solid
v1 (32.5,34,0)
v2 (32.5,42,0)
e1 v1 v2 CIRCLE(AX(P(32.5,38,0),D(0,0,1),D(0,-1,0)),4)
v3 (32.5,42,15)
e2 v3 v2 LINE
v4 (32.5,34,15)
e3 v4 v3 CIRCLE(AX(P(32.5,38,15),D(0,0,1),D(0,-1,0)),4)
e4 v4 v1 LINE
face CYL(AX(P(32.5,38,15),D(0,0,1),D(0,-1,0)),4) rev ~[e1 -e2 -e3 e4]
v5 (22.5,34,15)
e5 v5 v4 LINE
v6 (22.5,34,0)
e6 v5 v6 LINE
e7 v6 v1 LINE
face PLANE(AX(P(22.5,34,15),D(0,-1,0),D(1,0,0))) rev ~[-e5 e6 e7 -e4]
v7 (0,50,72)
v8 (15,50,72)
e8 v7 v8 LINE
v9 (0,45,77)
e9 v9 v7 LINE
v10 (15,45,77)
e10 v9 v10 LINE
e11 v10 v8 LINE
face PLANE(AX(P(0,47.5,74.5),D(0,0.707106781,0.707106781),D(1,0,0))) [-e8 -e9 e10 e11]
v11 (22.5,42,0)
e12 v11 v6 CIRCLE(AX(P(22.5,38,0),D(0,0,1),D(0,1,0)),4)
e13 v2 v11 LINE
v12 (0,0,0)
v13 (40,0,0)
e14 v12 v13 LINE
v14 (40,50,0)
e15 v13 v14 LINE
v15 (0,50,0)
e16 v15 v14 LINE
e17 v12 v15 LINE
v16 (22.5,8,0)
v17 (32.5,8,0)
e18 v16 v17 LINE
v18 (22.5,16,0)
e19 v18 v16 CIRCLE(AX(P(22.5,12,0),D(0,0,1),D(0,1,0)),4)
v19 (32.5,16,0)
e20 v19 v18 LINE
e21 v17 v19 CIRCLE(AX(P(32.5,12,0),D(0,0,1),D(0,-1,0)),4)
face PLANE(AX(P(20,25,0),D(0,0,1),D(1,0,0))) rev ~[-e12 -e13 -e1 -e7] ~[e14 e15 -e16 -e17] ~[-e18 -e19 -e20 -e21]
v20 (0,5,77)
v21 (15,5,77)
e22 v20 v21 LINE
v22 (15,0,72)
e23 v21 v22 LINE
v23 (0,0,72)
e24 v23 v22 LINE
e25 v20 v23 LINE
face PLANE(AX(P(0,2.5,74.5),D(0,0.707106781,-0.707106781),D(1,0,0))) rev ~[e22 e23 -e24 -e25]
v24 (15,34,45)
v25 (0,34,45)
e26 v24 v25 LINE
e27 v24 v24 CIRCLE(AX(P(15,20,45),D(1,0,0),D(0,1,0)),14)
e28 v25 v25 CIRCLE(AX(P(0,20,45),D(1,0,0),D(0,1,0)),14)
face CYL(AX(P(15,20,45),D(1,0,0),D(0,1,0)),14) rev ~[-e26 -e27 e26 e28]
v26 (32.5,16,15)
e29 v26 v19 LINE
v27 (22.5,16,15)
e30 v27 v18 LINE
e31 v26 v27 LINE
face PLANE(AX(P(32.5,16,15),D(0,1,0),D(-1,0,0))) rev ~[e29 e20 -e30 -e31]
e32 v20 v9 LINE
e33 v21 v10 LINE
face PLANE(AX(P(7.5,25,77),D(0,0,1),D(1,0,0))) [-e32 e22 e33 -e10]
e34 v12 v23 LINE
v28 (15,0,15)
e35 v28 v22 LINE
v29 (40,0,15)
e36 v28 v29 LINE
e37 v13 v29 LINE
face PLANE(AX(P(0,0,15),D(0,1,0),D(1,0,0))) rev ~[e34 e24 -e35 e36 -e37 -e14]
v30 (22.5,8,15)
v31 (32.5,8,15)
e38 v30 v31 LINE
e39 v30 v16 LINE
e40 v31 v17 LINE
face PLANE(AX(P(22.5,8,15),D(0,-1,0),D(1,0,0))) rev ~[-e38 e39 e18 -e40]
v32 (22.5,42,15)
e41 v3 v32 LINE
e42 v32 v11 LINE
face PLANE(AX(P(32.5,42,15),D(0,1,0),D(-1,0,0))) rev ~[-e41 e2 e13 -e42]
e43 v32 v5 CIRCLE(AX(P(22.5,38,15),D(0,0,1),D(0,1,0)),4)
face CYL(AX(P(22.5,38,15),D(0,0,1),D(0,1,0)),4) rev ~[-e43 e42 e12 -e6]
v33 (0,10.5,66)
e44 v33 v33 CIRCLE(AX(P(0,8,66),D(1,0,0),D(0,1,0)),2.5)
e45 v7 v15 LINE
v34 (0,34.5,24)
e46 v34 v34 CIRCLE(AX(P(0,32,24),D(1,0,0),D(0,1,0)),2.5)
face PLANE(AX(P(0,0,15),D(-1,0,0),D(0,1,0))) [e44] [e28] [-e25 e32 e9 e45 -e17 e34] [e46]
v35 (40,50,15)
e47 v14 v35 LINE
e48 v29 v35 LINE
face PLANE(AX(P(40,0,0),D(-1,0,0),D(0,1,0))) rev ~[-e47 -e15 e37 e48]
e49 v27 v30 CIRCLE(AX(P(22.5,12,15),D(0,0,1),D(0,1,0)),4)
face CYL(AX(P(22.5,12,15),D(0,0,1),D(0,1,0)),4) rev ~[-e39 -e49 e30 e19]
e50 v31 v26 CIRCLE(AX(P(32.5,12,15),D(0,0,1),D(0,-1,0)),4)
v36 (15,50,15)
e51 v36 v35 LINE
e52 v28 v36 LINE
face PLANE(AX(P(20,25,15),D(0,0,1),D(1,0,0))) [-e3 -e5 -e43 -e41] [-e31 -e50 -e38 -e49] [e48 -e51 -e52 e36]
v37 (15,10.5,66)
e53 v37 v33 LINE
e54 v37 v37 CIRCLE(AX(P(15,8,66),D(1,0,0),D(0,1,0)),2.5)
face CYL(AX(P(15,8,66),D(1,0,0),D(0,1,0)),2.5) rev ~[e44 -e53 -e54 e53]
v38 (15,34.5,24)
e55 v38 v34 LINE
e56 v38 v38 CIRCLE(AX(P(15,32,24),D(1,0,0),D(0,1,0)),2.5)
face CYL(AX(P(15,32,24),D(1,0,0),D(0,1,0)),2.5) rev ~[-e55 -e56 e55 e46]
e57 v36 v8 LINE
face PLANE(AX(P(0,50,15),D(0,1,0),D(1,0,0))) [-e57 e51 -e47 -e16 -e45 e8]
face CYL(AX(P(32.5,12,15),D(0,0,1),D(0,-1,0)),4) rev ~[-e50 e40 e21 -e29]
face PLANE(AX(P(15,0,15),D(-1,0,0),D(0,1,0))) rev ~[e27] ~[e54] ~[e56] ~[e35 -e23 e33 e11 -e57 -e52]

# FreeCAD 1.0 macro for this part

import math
import FreeCAD as App
import Part
import Sketcher
from FreeCAD import Vector
Q = App.Units.Quantity


def edges_at(feature, points):
    """Names of the edges that pass closest to the given points."""
    edges = feature.Shape.Edges
    near = lambda p: min(range(len(edges)), key=lambda i: edges[i].distToShape(Part.Vertex(*p))[0])
    return sorted({f"Edge{near(p) + 1}" for p in points})

doc = App.newDocument("Part")
body = doc.addObject("PartDesign::Body", "Body")

sketch1 = doc.addObject("Sketcher::SketchObject", "Sketch")
body.addObject(sketch1)
sketch1.AttachmentSupport = (doc.XY_Plane, [""])
sketch1.MapMode = "FlatFace"
sketch1.addGeometry(Part.LineSegment(Vector(0, 50, 0), Vector(0, 0, 0)), False)
sketch1.addGeometry(Part.LineSegment(Vector(0, 0, 0), Vector(40, 0, 0)), False)
sketch1.addGeometry(Part.LineSegment(Vector(40, 0, 0), Vector(40, 50, 0)), False)
sketch1.addGeometry(Part.LineSegment(Vector(40, 50, 0), Vector(0, 50, 0)), False)
sketch1.addConstraint(Sketcher.Constraint("Coincident", 0, 2, 1, 1))
sketch1.addConstraint(Sketcher.Constraint("Coincident", 1, 2, 2, 1))
sketch1.addConstraint(Sketcher.Constraint("Coincident", 2, 2, 3, 1))
sketch1.addConstraint(Sketcher.Constraint("Coincident", 3, 2, 0, 1))
sketch1.addConstraint(Sketcher.Constraint("Vertical", 0))
sketch1.addConstraint(Sketcher.Constraint("Horizontal", 1))
sketch1.addConstraint(Sketcher.Constraint("Vertical", 2))
sketch1.addConstraint(Sketcher.Constraint("Horizontal", 3))
sketch1.addConstraint(Sketcher.Constraint("Coincident", 0, 2, -1, 1))
sketch1.addConstraint(Sketcher.Constraint("DistanceX", 1, 1, 1, 2, Q("40 mm")))
sketch1.addConstraint(Sketcher.Constraint("DistanceY", 0, 2, 0, 1, Q("50 mm")))
pad1 = doc.addObject("PartDesign::Pad", "Pad")
body.addObject(pad1)
pad1.Profile = sketch1
pad1.Length = 15

sketch2 = doc.addObject("Sketcher::SketchObject", "Sketch001")
body.addObject(sketch2)
sketch2.AttachmentSupport = (doc.XY_Plane, [""])
sketch2.MapMode = "FlatFace"
sketch2.AttachmentOffset = App.Placement(Vector(0, 0, 15), App.Rotation())
sketch2.addGeometry(Part.LineSegment(Vector(0, 50, 0), Vector(0, 0, 0)), False)
sketch2.addGeometry(Part.LineSegment(Vector(0, 0, 0), Vector(15, 0, 0)), False)
sketch2.addGeometry(Part.LineSegment(Vector(15, 0, 0), Vector(15, 50, 0)), False)
sketch2.addGeometry(Part.LineSegment(Vector(15, 50, 0), Vector(0, 50, 0)), False)
sketch2.addConstraint(Sketcher.Constraint("Coincident", 0, 2, 1, 1))
sketch2.addConstraint(Sketcher.Constraint("Coincident", 1, 2, 2, 1))
sketch2.addConstraint(Sketcher.Constraint("Coincident", 2, 2, 3, 1))
sketch2.addConstraint(Sketcher.Constraint("Coincident", 3, 2, 0, 1))
sketch2.addConstraint(Sketcher.Constraint("Vertical", 0))
sketch2.addConstraint(Sketcher.Constraint("Horizontal", 1))
sketch2.addConstraint(Sketcher.Constraint("Vertical", 2))
sketch2.addConstraint(Sketcher.Constraint("Horizontal", 3))
sketch2.addConstraint(Sketcher.Constraint("Coincident", 0, 2, -1, 1))
sketch2.addConstraint(Sketcher.Constraint("DistanceX", 1, 1, 1, 2, Q("15 mm")))
sketch2.addConstraint(Sketcher.Constraint("DistanceY", 0, 2, 0, 1, Q("50 mm")))
pad2 = doc.addObject("PartDesign::Pad", "Pad001")
body.addObject(pad2)
pad2.Profile = sketch2
pad2.Length = 62

sketch3 = doc.addObject("Sketcher::SketchObject", "Sketch002")
body.addObject(sketch3)
sketch3.AttachmentSupport = (doc.YZ_Plane, [""])
sketch3.MapMode = "FlatFace"
sketch3.AttachmentOffset = App.Placement(Vector(0, 0, 15), App.Rotation())
sketch3.addGeometry(Part.Circle(Vector(20, 45, 0), Vector(0, 0, 1), 14), False)
sketch3.addConstraint(Sketcher.Constraint("Diameter", 0, Q("28 mm")))
sketch3.addConstraint(Sketcher.Constraint("DistanceX", -1, 1, 0, 3, Q("20 mm")))
sketch3.addConstraint(Sketcher.Constraint("DistanceY", -1, 1, 0, 3, Q("45 mm")))
pocket1 = doc.addObject("PartDesign::Pocket", "Pocket")
body.addObject(pocket1)
pocket1.Profile = sketch3
pocket1.Type = "ThroughAll"
doc.recompute()

chamfer = doc.addObject("PartDesign::Chamfer", "Chamfer")
body.addObject(chamfer)
chamfer.Base = (pocket1, edges_at(pocket1, [(7.5, 50, 77), (7.5, 0, 77)]))
chamfer.Size = 5

sketch4 = doc.addObject("Sketcher::SketchObject", "Sketch003")
body.addObject(sketch4)
sketch4.AttachmentSupport = (doc.YZ_Plane, [""])
sketch4.MapMode = "FlatFace"
sketch4.AttachmentOffset = App.Placement(Vector(0, 0, 15), App.Rotation())
sketch4.addGeometry(Part.Circle(Vector(8, 66, 0), Vector(0, 0, 1), 2.5), False)
sketch4.addGeometry(Part.Circle(Vector(32, 24, 0), Vector(0, 0, 1), 2.5), False)
sketch4.addConstraint(Sketcher.Constraint("Equal", 0, 1))
sketch4.addConstraint(Sketcher.Constraint("Diameter", 0, Q("5 mm")))
sketch4.addConstraint(Sketcher.Constraint("DistanceX", -1, 1, 0, 3, Q("8 mm")))
sketch4.addConstraint(Sketcher.Constraint("DistanceY", -1, 1, 0, 3, Q("66 mm")))
sketch4.addConstraint(Sketcher.Constraint("DistanceX", -1, 1, 1, 3, Q("32 mm")))
sketch4.addConstraint(Sketcher.Constraint("DistanceY", -1, 1, 1, 3, Q("24 mm")))
pocket2 = doc.addObject("PartDesign::Pocket", "Pocket001")
body.addObject(pocket2)
pocket2.Profile = sketch4
pocket2.Type = "ThroughAll"

sketch5 = doc.addObject("Sketcher::SketchObject", "Sketch004")
body.addObject(sketch5)
sketch5.AttachmentSupport = (doc.XY_Plane, [""])
sketch5.MapMode = "FlatFace"
sketch5.AttachmentOffset = App.Placement(Vector(0, 0, 15), App.Rotation())
sketch5.addGeometry(Part.LineSegment(Vector(32.5, 42, 0), Vector(22.5, 42, 0)), False)
sketch5.addGeometry(Part.ArcOfCircle(Part.Circle(Vector(22.5, 38, 0), Vector(0, 0, 1), 4), math.radians(90), math.radians(270)), False)
sketch5.addGeometry(Part.LineSegment(Vector(22.5, 34, 0), Vector(32.5, 34, 0)), False)
sketch5.addGeometry(Part.ArcOfCircle(Part.Circle(Vector(32.5, 38, 0), Vector(0, 0, 1), 4), math.radians(-90), math.radians(90)), False)
sketch5.addGeometry(Part.LineSegment(Vector(32.5, 16, 0), Vector(22.5, 16, 0)), False)
sketch5.addGeometry(Part.ArcOfCircle(Part.Circle(Vector(22.5, 12, 0), Vector(0, 0, 1), 4), math.radians(90), math.radians(270)), False)
sketch5.addGeometry(Part.LineSegment(Vector(22.5, 8, 0), Vector(32.5, 8, 0)), False)
sketch5.addGeometry(Part.ArcOfCircle(Part.Circle(Vector(32.5, 12, 0), Vector(0, 0, 1), 4), math.radians(-90), math.radians(90)), False)
sketch5.addConstraint(Sketcher.Constraint("Tangent", 0, 2, 1, 1))
sketch5.addConstraint(Sketcher.Constraint("Tangent", 1, 2, 2, 1))
sketch5.addConstraint(Sketcher.Constraint("Tangent", 2, 2, 3, 1))
sketch5.addConstraint(Sketcher.Constraint("Tangent", 3, 2, 0, 1))
sketch5.addConstraint(Sketcher.Constraint("Tangent", 4, 2, 5, 1))
sketch5.addConstraint(Sketcher.Constraint("Tangent", 5, 2, 6, 1))
sketch5.addConstraint(Sketcher.Constraint("Tangent", 6, 2, 7, 1))
sketch5.addConstraint(Sketcher.Constraint("Tangent", 7, 2, 4, 1))
sketch5.addConstraint(Sketcher.Constraint("Horizontal", 0))
sketch5.addConstraint(Sketcher.Constraint("Horizontal", 2))
sketch5.addConstraint(Sketcher.Constraint("Horizontal", 4))
sketch5.addConstraint(Sketcher.Constraint("Horizontal", 6))
sketch5.addConstraint(Sketcher.Constraint("Equal", 3, 5))
sketch5.addConstraint(Sketcher.Constraint("Vertical", 1, 3, 5, 3))
sketch5.addConstraint(Sketcher.Constraint("Vertical", 3, 3, 7, 3))
sketch5.addConstraint(Sketcher.Constraint("Radius", 1, Q("4 mm")))
sketch5.addConstraint(Sketcher.Constraint("DistanceX", 0, 2, 0, 1, Q("10 mm")))
sketch5.addConstraint(Sketcher.Constraint("DistanceY", -1, 1, 1, 3, Q("38 mm")))
sketch5.addConstraint(Sketcher.Constraint("DistanceY", -1, 1, 5, 3, Q("12 mm")))
sketch5.addConstraint(Sketcher.Constraint("DistanceX", -1, 1, 1, 3, Q("22.5 mm")))
pocket3 = doc.addObject("PartDesign::Pocket", "Pocket002")
body.addObject(pocket3)
pocket3.Profile = sketch5
pocket3.Type = "ThroughAll"

doc.recompute()
